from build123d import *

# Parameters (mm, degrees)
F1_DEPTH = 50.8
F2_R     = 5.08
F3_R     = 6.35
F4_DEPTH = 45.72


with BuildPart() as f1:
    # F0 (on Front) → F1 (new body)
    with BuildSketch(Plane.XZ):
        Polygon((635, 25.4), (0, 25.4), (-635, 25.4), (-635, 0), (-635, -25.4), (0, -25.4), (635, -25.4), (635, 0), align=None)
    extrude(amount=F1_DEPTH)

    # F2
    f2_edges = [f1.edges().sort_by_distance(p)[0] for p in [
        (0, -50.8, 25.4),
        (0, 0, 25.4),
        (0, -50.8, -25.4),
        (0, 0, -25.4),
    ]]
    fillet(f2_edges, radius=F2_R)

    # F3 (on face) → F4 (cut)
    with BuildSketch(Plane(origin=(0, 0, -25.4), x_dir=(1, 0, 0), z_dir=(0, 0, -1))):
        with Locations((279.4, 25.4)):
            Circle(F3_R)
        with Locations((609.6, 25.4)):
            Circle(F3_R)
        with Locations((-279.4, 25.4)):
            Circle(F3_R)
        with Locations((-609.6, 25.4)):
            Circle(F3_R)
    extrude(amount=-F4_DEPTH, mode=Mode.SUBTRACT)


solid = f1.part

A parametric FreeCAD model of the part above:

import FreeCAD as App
import Part
import Sketcher
Q = App.Units.Quantity


def edges_at(feature, points):
    """Names of the edges that pass closest to the given points."""
    edges = feature.Shape.Edges
    near = lambda p: min(range(len(edges)), key=lambda i: edges[i].distToShape(Part.Vertex(*p))[0])
    return sorted({f"Edge{near(p) + 1}" for p in points})


def add_polygon(sketch, points):
    """Adds a closed chain of lines whose ends are joined by coincident constraints."""
    first, n = sketch.GeometryCount, len(points)
    for a, b in zip(points, points[1:] + points[:1]):
        sketch.addGeometry(Part.LineSegment(App.Vector(*a, 0), App.Vector(*b, 0)), False)
    for i in range(n):
        sketch.addConstraint(Sketcher.Constraint("Coincident", first + i, 2, first + (i + 1) % n, 1))

doc = App.newDocument("Part")
params = doc.addObject("Spreadsheet::Sheet", "Params")
for row, (alias, value) in enumerate([
    ("sketch1_width", "50 in"),
    ("sketch1_height", "2 in"),
    ("pad1_length", "2 in"),
    ("fillet_radius", "0.2 in"),
    ("sketch2_diameter", "0.5 in"),
    ("pocket1_length", "1.8 in"),
], start=1):
    params.set(f"A{row}", alias)
    params.set(f"B{row}", "=" + value)
    params.setAlias(f"B{row}", alias)

body = doc.addObject("PartDesign::Body", "Body")

# Sketch on XZ plane
sketch1 = doc.addObject("Sketcher::SketchObject", "Sketch")
body.addObject(sketch1)
sketch1.AttachmentSupport = (doc.XZ_Plane, [""])
sketch1.MapMode = "FlatFace"
add_polygon(sketch1, [(635, 25), (-635, 25), (-635, -25), (635, -25)])  # lines 0-3
sketch1.addConstraint([
    Sketcher.Constraint("Horizontal", 0),
    Sketcher.Constraint("Vertical", 1),
    Sketcher.Constraint("Horizontal", 2),
    Sketcher.Constraint("Vertical", 3),
    Sketcher.Constraint("Symmetric", 0, 2, 2, 2, -1, 1),
    Sketcher.Constraint("DistanceX", 0, 2, 0, 1, Q("50 in")),
    Sketcher.Constraint("DistanceY", 1, 2, 1, 1, Q("2 in")),
])
sketch1.setExpression("Constraints[9]", "Params.sketch1_width")
sketch1.setExpression("Constraints[10]", "Params.sketch1_height")
pad1 = doc.addObject("PartDesign::Pad", "Pad")
body.addObject(pad1)
pad1.Profile = sketch1
pad1.setExpression("Length", "Params.pad1_length")
doc.recompute()

fillet = doc.addObject("PartDesign::Fillet", "Fillet")
body.addObject(fillet)
fillet.Base = (pad1, edges_at(pad1, [
    (0, -50.8, 25.4),
    (0, 0, 25.4),
    (0, -50.8, -25.4),
    (0, 0, -25.4),
]))
fillet.setExpression("Radius", "Params.fillet_radius")

# Sketch on XY plane
sketch2 = doc.addObject("Sketcher::SketchObject", "Sketch001")
body.addObject(sketch2)
sketch2.AttachmentSupport = (doc.XY_Plane, [""])
sketch2.MapMode = "FlatFace"
sketch2.AttachmentOffset = App.Placement(App.Vector(0, 0, -1 * 25.4), App.Rotation())
sketch2.addGeometry([
    Part.Circle(App.Vector(279, -25, 0), App.Vector(0, 0, 1), 6),
    Part.Circle(App.Vector(610, -25, 0), App.Vector(0, 0, 1), 6),
    Part.Circle(App.Vector(-279, -25, 0), App.Vector(0, 0, 1), 6),
    Part.Circle(App.Vector(-610, -25, 0), App.Vector(0, 0, 1), 6),
], False)
sketch2.addConstraint([
    Sketcher.Constraint("Equal", 0, 1),
    Sketcher.Constraint("Equal", 1, 2),
    Sketcher.Constraint("Equal", 2, 3),
    Sketcher.Constraint("Symmetric", 0, 3, 2, 3, -2),
    Sketcher.Constraint("Symmetric", 1, 3, 3, 3, -2),
    Sketcher.Constraint("Horizontal", 0, 3, 1, 3),
    Sketcher.Constraint("Diameter", 0, Q("0.5 in")),
    Sketcher.Constraint("DistanceX", -1, 1, 0, 3, Q("11 in")),
    Sketcher.Constraint("DistanceY", 0, 3, -1, 1, Q("1 in")),
    Sketcher.Constraint("DistanceX", -1, 1, 1, 3, Q("24 in")),
])
sketch2.setExpression("Constraints[6]", "Params.sketch2_diameter")
pocket1 = doc.addObject("PartDesign::Pocket", "Pocket")
body.addObject(pocket1)
pocket1.Profile = sketch2
pocket1.setExpression("Length", "Params.pocket1_length")
pocket1.Reversed = True

doc.recompute()
